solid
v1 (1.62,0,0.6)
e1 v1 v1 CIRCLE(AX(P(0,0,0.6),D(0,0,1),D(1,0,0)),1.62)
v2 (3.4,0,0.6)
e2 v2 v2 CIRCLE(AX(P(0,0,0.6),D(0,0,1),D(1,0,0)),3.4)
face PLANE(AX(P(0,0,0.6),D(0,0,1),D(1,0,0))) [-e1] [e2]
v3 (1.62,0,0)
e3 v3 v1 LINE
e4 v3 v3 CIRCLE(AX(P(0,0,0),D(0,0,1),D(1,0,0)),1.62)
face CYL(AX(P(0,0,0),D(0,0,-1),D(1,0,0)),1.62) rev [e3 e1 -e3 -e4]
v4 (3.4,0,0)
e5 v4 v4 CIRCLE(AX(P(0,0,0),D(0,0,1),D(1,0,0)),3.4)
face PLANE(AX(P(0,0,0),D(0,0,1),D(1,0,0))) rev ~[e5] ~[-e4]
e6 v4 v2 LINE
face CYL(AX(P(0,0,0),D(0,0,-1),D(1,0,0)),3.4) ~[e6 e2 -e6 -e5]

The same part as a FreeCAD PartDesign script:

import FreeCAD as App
import Part
import Sketcher
from FreeCAD import Vector

doc = App.newDocument("Part")
params = doc.addObject("Spreadsheet::Sheet", "Params")
for row, (alias, value) in enumerate([
    ("sketch1_diameter", "6.8 mm"),
    ("sketch1_diameter2", "3.24 mm"),
    ("pad1_length", "0.6 mm"),
], start=1):
    params.set(f"A{row}", alias)
    params.set(f"B{row}", "=" + value)
    params.setAlias(f"B{row}", alias)

body = doc.addObject("PartDesign::Body", "Body")

sketch1 = doc.addObject("Sketcher::SketchObject", "Sketch")
body.addObject(sketch1)
sketch1.AttachmentSupport = (doc.XY_Plane, [""])
sketch1.MapMode = "FlatFace"
sketch1.addGeometry(Part.Circle(Vector(0, 0, 0), Vector(0, 0, 1), 3.4), False)
sketch1.addGeometry(Part.Circle(Vector(0, 0, 0), Vector(0, 0, 1), 1.6), False)
sketch1.addConstraint(Sketcher.Constraint("Coincident", 0, 3, -1, 1))
sketch1.addConstraint(Sketcher.Constraint("Coincident", 1, 3, -1, 1))
sketch1.addConstraint(Sketcher.Constraint("Diameter", 0, 6.8))
sketch1.addConstraint(Sketcher.Constraint("Diameter", 1, 3.24))
sketch1.setExpression("Constraints[2]", "Params.sketch1_diameter")
sketch1.setExpression("Constraints[3]", "Params.sketch1_diameter2")
pad1 = doc.addObject("PartDesign::Pad", "Pad")
body.addObject(pad1)
pad1.Profile = sketch1
pad1.setExpression("Length", "Params.pad1_length")

doc.recompute()
